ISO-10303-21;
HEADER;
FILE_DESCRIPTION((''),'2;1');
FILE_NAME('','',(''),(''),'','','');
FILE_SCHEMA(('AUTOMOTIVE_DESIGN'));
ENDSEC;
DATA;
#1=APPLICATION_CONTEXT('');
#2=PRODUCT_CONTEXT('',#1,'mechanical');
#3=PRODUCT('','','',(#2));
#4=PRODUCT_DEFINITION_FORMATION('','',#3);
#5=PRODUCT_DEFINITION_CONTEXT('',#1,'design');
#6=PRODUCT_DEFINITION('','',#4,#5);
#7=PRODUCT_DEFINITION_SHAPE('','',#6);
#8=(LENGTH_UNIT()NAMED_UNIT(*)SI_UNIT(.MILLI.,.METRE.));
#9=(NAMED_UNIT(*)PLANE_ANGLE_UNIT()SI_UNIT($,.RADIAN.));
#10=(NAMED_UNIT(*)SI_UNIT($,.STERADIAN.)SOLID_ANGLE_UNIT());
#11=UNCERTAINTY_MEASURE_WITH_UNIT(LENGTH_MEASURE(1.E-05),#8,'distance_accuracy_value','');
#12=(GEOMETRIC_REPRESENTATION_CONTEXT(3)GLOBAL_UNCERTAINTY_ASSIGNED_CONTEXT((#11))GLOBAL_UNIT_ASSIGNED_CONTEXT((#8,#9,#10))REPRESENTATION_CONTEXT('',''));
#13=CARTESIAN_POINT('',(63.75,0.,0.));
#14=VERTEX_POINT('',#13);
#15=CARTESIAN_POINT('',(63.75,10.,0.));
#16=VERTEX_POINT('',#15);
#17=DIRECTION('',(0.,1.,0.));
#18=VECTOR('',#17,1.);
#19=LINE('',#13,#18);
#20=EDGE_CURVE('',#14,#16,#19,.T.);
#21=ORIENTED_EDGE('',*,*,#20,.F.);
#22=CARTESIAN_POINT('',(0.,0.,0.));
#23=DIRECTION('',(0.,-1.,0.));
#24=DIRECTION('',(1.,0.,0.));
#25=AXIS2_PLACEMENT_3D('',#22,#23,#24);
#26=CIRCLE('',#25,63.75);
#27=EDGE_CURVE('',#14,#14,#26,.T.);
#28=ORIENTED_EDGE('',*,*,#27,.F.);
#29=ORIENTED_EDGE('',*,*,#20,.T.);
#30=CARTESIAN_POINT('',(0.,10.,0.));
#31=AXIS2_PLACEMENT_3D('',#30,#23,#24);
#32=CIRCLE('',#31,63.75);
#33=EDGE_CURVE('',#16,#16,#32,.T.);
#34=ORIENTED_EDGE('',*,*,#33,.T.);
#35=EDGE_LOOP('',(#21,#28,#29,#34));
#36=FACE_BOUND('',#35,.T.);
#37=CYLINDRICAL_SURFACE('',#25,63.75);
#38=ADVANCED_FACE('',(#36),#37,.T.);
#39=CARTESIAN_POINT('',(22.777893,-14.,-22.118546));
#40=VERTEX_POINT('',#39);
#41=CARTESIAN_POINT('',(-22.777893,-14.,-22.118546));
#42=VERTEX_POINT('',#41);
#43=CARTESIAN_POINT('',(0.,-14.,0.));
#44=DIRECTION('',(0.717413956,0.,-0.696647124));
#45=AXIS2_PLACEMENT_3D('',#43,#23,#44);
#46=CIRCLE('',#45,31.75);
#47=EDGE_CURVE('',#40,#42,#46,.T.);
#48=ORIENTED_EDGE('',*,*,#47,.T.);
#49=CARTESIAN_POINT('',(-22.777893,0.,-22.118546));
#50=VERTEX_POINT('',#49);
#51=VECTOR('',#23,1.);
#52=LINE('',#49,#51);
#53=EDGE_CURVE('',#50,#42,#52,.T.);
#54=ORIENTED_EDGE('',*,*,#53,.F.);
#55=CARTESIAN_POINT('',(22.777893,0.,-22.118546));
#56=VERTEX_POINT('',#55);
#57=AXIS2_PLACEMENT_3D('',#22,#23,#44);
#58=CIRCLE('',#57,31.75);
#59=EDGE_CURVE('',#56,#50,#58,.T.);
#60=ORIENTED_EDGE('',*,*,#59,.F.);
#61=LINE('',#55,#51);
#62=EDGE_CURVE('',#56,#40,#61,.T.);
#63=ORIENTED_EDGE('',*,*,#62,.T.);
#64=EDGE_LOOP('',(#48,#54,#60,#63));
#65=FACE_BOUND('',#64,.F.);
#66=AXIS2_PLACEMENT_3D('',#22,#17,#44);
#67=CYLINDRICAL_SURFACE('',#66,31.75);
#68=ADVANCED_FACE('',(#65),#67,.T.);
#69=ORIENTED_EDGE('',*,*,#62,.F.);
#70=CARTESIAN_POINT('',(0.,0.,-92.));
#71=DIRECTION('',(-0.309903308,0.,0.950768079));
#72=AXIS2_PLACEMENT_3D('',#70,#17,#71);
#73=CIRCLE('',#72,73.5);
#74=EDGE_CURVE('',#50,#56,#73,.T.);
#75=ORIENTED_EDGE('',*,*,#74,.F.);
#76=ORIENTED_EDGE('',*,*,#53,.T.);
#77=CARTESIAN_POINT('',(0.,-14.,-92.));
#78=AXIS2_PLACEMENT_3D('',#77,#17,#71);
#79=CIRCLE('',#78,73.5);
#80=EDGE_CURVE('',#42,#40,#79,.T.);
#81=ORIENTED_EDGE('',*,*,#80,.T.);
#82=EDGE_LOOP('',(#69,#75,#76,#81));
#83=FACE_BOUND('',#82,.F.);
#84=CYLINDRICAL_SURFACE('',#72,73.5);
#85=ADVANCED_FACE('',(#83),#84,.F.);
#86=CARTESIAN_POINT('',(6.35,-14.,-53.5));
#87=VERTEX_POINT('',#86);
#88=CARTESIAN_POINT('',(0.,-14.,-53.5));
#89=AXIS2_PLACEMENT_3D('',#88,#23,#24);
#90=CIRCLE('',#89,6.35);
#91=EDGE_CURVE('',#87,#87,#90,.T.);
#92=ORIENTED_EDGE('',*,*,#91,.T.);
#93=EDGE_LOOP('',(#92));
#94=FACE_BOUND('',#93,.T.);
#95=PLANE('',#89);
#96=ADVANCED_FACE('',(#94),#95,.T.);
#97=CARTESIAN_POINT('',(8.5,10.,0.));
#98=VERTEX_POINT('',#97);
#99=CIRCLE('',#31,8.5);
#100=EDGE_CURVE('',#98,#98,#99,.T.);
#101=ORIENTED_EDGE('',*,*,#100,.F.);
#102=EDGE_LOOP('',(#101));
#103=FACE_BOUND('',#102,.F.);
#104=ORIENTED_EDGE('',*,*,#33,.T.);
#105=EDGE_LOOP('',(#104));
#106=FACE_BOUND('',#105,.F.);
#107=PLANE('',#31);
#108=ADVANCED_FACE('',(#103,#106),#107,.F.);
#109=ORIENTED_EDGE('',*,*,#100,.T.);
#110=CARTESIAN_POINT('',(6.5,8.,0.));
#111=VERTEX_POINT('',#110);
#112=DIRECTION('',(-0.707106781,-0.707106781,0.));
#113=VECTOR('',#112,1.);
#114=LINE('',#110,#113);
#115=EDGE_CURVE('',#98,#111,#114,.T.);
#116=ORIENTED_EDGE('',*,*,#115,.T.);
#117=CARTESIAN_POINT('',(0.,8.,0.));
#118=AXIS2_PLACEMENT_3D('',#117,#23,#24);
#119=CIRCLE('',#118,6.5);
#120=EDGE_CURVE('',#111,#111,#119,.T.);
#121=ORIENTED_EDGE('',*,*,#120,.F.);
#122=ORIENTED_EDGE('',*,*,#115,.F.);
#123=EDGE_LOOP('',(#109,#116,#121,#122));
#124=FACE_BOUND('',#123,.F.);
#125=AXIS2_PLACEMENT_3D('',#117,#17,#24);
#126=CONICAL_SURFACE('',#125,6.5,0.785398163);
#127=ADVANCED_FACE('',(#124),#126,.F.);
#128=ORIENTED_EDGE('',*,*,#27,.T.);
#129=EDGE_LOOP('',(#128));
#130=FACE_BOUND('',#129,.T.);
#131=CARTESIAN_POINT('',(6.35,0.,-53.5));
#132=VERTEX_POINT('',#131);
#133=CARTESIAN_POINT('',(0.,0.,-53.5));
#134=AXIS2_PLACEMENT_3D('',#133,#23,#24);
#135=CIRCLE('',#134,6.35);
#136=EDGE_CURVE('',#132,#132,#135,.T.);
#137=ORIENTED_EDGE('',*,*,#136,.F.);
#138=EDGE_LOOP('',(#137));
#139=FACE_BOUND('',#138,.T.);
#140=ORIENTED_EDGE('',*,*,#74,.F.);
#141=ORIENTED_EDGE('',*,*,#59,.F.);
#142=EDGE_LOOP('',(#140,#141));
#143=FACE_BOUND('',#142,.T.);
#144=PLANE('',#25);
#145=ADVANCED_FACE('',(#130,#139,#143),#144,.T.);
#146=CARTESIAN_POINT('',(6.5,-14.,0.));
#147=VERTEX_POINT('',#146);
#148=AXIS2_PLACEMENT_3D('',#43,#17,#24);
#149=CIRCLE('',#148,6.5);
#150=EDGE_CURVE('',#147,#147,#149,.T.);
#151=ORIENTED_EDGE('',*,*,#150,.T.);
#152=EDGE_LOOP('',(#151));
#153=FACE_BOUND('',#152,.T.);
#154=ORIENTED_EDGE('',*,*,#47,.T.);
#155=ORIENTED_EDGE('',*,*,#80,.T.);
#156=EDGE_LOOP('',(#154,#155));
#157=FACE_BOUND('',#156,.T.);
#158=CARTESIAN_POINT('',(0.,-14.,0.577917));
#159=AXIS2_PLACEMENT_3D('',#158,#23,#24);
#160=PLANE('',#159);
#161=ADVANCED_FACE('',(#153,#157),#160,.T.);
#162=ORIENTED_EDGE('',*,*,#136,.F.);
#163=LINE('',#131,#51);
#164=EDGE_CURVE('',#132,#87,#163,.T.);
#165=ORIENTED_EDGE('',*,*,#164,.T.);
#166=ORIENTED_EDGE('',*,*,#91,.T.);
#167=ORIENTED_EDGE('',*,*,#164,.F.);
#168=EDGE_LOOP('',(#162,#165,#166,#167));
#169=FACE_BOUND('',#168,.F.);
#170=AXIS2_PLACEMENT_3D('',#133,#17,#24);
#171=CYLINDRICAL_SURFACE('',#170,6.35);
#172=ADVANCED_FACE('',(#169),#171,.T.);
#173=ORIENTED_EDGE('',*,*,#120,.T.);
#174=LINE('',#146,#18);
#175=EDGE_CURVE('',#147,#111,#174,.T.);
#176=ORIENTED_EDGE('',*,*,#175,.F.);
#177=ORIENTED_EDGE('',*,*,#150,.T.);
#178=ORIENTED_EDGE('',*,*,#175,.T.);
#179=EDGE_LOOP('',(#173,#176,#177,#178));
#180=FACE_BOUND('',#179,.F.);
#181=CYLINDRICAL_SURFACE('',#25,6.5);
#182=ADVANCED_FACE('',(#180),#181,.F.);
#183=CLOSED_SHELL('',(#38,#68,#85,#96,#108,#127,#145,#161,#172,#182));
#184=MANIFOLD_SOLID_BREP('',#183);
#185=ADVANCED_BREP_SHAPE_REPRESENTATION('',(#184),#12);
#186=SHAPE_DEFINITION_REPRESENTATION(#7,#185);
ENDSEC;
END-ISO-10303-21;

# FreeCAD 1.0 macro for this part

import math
import FreeCAD as App
import Part
import Sketcher

V = App.Vector


def edges_at(feature, points):
    """Names of the edges that pass closest to the given points."""
    edges = feature.Shape.Edges
    near = lambda p: min(range(len(edges)), key=lambda i: edges[i].distToShape(Part.Vertex(*p))[0])
    return sorted({f"Edge{near(p) + 1}" for p in points})

doc = App.newDocument("Part")
params = doc.addObject("Spreadsheet::Sheet", "Params")
for row, (alias, value) in enumerate([
    ("sketch1_diameter", "127.5 mm"),
    ("pad1_length", "10 mm"),
    ("sketch2_diameter", "12.7 mm"),
    ("sketch2_radius", "73.5 mm"),
    ("sketch2_radius2", "31.75 mm"),
    ("pad2_length", "14 mm"),
    ("sketch3_diameter", "13 mm"),
    ("chamfer_size", "2 mm"),
], start=1):
    params.set(f"A{row}", alias)
    params.set(f"B{row}", "=" + value)
    params.setAlias(f"B{row}", alias)

body = doc.addObject("PartDesign::Body", "Body")

# Sketch on XZ plane
sketch1 = body.newObject("Sketcher::SketchObject", "Sketch")
sketch1.AttachmentSupport = (doc.getObject("XZ_Plane"), [""])
sketch1.MapMode = "FlatFace"
sketch1.addGeometry(Part.Circle(V(0, 0, 0), V(0, 0, 1), 64), False)
sketch1.addConstraint(Sketcher.Constraint("Coincident", 0, 3, -1, 1))
sketch1.addConstraint(Sketcher.Constraint("Diameter", 0, 127.5))
sketch1.setExpression("Constraints[1]", "Params.sketch1_diameter")
pad1 = body.newObject("PartDesign::Pad", "Pad")
pad1.Profile = sketch1
pad1.setExpression("Length", "Params.pad1_length")
pad1.Reversed = True

# Sketch on XZ plane
sketch2 = body.newObject("Sketcher::SketchObject", "Sketch001")
sketch2.AttachmentSupport = (doc.getObject("XZ_Plane"), [""])
sketch2.MapMode = "FlatFace"
sketch2.addGeometry(Part.ArcOfCircle(Part.Circle(V(0, -92, 0), V(0, 0, 1), 73), math.radians(72), math.radians(108)), False)
sketch2.addGeometry(Part.ArcOfCircle(Part.Circle(V(0, 0, 0), V(0, 0, 1), 32), math.radians(-44), math.radians(224)), False)
sketch2.addGeometry(Part.Circle(V(0, -54, 0), V(0, 0, 1), 6), False)
sketch2.addConstraint(Sketcher.Constraint("Coincident", 0, 1, 1, 1))
sketch2.addConstraint(Sketcher.Constraint("Coincident", 1, 2, 0, 2))
sketch2.addConstraint(Sketcher.Constraint("Coincident", 1, 3, -1, 1))
sketch2.addConstraint(Sketcher.Constraint("PointOnObject", 0, 3, -2))
sketch2.addConstraint(Sketcher.Constraint("PointOnObject", 2, 3, -2))
sketch2.addConstraint(Sketcher.Constraint("Diameter", 2, 12.7))
sketch2.addConstraint(Sketcher.Constraint("Radius", 0, 73.5))
sketch2.addConstraint(Sketcher.Constraint("Radius", 1, 31.75))
sketch2.addConstraint(Sketcher.Constraint("DistanceY", 0, 3, -1, 1, 92.0))
sketch2.addConstraint(Sketcher.Constraint("DistanceY", 2, 3, -1, 1, 53.5))
sketch2.setExpression("Constraints[5]", "Params.sketch2_diameter")
sketch2.setExpression("Constraints[6]", "Params.sketch2_radius")
sketch2.setExpression("Constraints[7]", "Params.sketch2_radius2")
pad2 = body.newObject("PartDesign::Pad", "Pad001")
pad2.Profile = sketch2
pad2.setExpression("Length", "Params.pad2_length")

# Sketch on XZ plane
sketch3 = body.newObject("Sketcher::SketchObject", "Sketch002")
sketch3.AttachmentSupport = (doc.getObject("XZ_Plane"), [""])
sketch3.MapMode = "FlatFace"
sketch3.addGeometry(Part.Circle(V(0, 0, 0), V(0, 0, 1), 6), False)
sketch3.addConstraint(Sketcher.Constraint("Coincident", 0, 3, -1, 1))
sketch3.addConstraint(Sketcher.Constraint("Diameter", 0, 13.0))
sketch3.setExpression("Constraints[1]", "Params.sketch3_diameter")
pocket1 = body.newObject("PartDesign::Pocket", "Pocket")
pocket1.Profile = sketch3
pocket1.Type = "ThroughAll"
pocket1.Midplane = True
doc.recompute()

chamfer = body.newObject("PartDesign::Chamfer", "Chamfer")
chamfer.Base = (pocket1, edges_at(pocket1, [(-6.5, 10, 0)]))
chamfer.setExpression("Size", "Params.chamfer_size")

doc.recompute()
